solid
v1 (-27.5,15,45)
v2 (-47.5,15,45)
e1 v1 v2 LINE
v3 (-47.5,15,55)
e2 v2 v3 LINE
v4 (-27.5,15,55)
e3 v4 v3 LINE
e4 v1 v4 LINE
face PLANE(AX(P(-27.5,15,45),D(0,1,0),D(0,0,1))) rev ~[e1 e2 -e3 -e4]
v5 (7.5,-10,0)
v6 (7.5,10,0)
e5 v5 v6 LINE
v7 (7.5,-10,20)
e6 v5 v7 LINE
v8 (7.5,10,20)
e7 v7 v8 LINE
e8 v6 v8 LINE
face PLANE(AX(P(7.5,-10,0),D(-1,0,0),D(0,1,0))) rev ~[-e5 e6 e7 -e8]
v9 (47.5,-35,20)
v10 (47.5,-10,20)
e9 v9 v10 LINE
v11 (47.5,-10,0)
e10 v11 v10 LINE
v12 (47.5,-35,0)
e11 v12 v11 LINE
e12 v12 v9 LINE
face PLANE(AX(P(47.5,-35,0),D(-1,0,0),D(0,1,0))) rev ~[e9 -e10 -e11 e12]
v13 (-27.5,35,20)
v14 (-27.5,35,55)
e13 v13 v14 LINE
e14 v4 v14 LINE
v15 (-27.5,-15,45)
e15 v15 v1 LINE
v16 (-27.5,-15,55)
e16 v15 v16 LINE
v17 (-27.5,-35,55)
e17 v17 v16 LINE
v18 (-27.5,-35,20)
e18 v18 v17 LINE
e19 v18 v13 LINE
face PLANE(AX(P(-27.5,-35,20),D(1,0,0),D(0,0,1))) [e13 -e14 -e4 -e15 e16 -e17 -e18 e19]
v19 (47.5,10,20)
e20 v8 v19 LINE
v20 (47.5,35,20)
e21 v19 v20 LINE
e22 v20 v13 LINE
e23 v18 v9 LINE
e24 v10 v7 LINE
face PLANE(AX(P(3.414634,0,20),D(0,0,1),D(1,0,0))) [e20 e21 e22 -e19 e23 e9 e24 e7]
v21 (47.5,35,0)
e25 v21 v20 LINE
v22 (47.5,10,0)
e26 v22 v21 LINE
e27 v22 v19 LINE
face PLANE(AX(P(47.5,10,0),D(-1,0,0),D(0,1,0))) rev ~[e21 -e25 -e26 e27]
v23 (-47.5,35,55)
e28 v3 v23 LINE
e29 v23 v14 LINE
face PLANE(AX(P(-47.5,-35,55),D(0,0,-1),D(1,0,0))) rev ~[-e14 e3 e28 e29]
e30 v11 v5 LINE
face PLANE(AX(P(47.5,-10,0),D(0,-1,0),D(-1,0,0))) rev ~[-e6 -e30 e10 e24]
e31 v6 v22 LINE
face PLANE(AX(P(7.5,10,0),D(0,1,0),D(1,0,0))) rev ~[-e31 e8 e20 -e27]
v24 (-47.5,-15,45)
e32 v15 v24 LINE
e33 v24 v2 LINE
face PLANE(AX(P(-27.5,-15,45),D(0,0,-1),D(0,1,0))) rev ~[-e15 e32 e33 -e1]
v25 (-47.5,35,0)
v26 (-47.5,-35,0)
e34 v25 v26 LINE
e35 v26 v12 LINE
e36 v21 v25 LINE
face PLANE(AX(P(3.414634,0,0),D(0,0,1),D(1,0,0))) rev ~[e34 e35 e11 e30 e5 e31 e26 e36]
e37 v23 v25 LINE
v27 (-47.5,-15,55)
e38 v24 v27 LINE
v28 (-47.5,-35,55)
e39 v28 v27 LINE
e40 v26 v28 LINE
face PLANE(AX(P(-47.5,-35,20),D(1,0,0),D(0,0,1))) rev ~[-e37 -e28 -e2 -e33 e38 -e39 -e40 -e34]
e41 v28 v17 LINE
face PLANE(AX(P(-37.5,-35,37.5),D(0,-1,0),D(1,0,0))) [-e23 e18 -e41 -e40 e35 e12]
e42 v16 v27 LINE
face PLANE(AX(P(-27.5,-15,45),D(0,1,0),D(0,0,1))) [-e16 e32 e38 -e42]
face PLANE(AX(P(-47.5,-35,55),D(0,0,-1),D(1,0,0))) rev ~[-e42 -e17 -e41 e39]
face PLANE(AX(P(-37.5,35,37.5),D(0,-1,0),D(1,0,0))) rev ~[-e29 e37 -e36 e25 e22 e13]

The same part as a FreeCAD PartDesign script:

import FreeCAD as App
import Part
import Sketcher
from FreeCAD import Vector

doc = App.newDocument("Part")
body = doc.addObject("PartDesign::Body", "Body")

sketch1 = body.newObject("Sketcher::SketchObject", "Sketch")
sketch1.AttachmentSupport = (doc.getObject("XY_Plane"), [""])
sketch1.MapMode = "FlatFace"
sketch1.addGeometry([
    Part.LineSegment(Vector(-47.5, -35, 0), Vector(47.5, -35, 0)),
    Part.LineSegment(Vector(47.5, -35, 0), Vector(47.5, -10, 0)),
    Part.LineSegment(Vector(47.5, -10, 0), Vector(7.5, -10, 0)),
    Part.LineSegment(Vector(7.5, -10, 0), Vector(7.5, 10, 0)),
    Part.LineSegment(Vector(7.5, 10, 0), Vector(47.5, 10, 0)),
    Part.LineSegment(Vector(47.5, 10, 0), Vector(47.5, 35, 0)),
    Part.LineSegment(Vector(47.5, 35, 0), Vector(-47.5, 35, 0)),
    Part.LineSegment(Vector(-47.5, 35, 0), Vector(-47.5, -35, 0)),
], False)
sketch1.addConstraint([
    Sketcher.Constraint("Coincident", 0, 2, 1, 1),
    Sketcher.Constraint("Coincident", 1, 2, 2, 1),
    Sketcher.Constraint("Coincident", 2, 2, 3, 1),
    Sketcher.Constraint("Coincident", 3, 2, 4, 1),
    Sketcher.Constraint("Coincident", 4, 2, 5, 1),
    Sketcher.Constraint("Coincident", 5, 2, 6, 1),
    Sketcher.Constraint("Coincident", 6, 2, 7, 1),
    Sketcher.Constraint("Coincident", 7, 2, 0, 1),
    Sketcher.Constraint("Horizontal", 0),
    Sketcher.Constraint("Vertical", 1),
    Sketcher.Constraint("Horizontal", 2),
    Sketcher.Constraint("Vertical", 3),
    Sketcher.Constraint("Horizontal", 4),
    Sketcher.Constraint("Vertical", 5),
    Sketcher.Constraint("Horizontal", 6),
    Sketcher.Constraint("Vertical", 7),
    Sketcher.Constraint("Symmetric", 0, 2, 6, 2, -1, 1),
    Sketcher.Constraint("Symmetric", 1, 2, 4, 2, -1),
    Sketcher.Constraint("DistanceX", 0, 1, 0, 2, 95.0),
    Sketcher.Constraint("DistanceX", 2, 2, 2, 1, 40.0),
    Sketcher.Constraint("DistanceY", 1, 1, 1, 2, 25.0),
    Sketcher.Constraint("DistanceY", 3, 1, 3, 2, 20.0),
])
pad1 = body.newObject("PartDesign::Pad", "Pad")
pad1.Profile = sketch1
pad1.Length = 20

sketch2 = body.newObject("Sketcher::SketchObject", "Sketch001")
sketch2.AttachmentSupport = (doc.getObject("XZ_Plane"), [""])
sketch2.MapMode = "FlatFace"
sketch2.AttachmentOffset = App.Placement(Vector(0, 0, 35), App.Rotation())
sketch2.addGeometry([
    Part.LineSegment(Vector(-47.5, 55, 0), Vector(-47.5, 20, 0)),
    Part.LineSegment(Vector(-47.5, 20, 0), Vector(-27.5, 20, 0)),
    Part.LineSegment(Vector(-27.5, 20, 0), Vector(-27.5, 55, 0)),
    Part.LineSegment(Vector(-27.5, 55, 0), Vector(-47.5, 55, 0)),
], False)
sketch2.addConstraint([
    Sketcher.Constraint("Coincident", 0, 2, 1, 1),
    Sketcher.Constraint("Coincident", 1, 2, 2, 1),
    Sketcher.Constraint("Coincident", 2, 2, 3, 1),
    Sketcher.Constraint("Coincident", 3, 2, 0, 1),
    Sketcher.Constraint("Vertical", 0),
    Sketcher.Constraint("Horizontal", 1),
    Sketcher.Constraint("Vertical", 2),
    Sketcher.Constraint("Horizontal", 3),
    Sketcher.Constraint("DistanceX", 1, 1, 1, 2, 20.0),
    Sketcher.Constraint("DistanceY", 0, 2, 0, 1, 35.0),
    Sketcher.Constraint("DistanceY", -1, 1, 0, 2, 20.0),
    Sketcher.Constraint("DistanceX", 0, 2, -1, 1, 47.5),
])
pad2 = body.newObject("PartDesign::Pad", "Pad001")
pad2.Profile = sketch2
pad2.Length = 70
pad2.Reversed = True

sketch3 = body.newObject("Sketcher::SketchObject", "Sketch002")
sketch3.AttachmentSupport = (doc.getObject("YZ_Plane"), [""])
sketch3.MapMode = "FlatFace"
sketch3.AttachmentOffset = App.Placement(Vector(0, 0, -27.5), App.Rotation())
sketch3.addGeometry([
    Part.LineSegment(Vector(-15, 55, 0), Vector(-15, 45, 0)),
    Part.LineSegment(Vector(-15, 45, 0), Vector(15, 45, 0)),
    Part.LineSegment(Vector(15, 45, 0), Vector(15, 55, 0)),
    Part.LineSegment(Vector(15, 55, 0), Vector(-15, 55, 0)),
], False)
sketch3.addConstraint([
    Sketcher.Constraint("Coincident", 0, 2, 1, 1),
    Sketcher.Constraint("Coincident", 1, 2, 2, 1),
    Sketcher.Constraint("Coincident", 2, 2, 3, 1),
    Sketcher.Constraint("Coincident", 3, 2, 0, 1),
    Sketcher.Constraint("Vertical", 0),
    Sketcher.Constraint("Horizontal", 1),
    Sketcher.Constraint("Vertical", 2),
    Sketcher.Constraint("Horizontal", 3),
    Sketcher.Constraint("DistanceX", 1, 1, 1, 2, 30.0),
    Sketcher.Constraint("DistanceY", 0, 2, 0, 1, 10.0),
    Sketcher.Constraint("DistanceX", 0, 2, -1, 1, 15.0),
    Sketcher.Constraint("DistanceY", -1, 1, 0, 2, 45.0),
])
pocket1 = body.newObject("PartDesign::Pocket", "Pocket")
pocket1.Profile = sketch3
pocket1.Type = "ThroughAll"

doc.recompute()
